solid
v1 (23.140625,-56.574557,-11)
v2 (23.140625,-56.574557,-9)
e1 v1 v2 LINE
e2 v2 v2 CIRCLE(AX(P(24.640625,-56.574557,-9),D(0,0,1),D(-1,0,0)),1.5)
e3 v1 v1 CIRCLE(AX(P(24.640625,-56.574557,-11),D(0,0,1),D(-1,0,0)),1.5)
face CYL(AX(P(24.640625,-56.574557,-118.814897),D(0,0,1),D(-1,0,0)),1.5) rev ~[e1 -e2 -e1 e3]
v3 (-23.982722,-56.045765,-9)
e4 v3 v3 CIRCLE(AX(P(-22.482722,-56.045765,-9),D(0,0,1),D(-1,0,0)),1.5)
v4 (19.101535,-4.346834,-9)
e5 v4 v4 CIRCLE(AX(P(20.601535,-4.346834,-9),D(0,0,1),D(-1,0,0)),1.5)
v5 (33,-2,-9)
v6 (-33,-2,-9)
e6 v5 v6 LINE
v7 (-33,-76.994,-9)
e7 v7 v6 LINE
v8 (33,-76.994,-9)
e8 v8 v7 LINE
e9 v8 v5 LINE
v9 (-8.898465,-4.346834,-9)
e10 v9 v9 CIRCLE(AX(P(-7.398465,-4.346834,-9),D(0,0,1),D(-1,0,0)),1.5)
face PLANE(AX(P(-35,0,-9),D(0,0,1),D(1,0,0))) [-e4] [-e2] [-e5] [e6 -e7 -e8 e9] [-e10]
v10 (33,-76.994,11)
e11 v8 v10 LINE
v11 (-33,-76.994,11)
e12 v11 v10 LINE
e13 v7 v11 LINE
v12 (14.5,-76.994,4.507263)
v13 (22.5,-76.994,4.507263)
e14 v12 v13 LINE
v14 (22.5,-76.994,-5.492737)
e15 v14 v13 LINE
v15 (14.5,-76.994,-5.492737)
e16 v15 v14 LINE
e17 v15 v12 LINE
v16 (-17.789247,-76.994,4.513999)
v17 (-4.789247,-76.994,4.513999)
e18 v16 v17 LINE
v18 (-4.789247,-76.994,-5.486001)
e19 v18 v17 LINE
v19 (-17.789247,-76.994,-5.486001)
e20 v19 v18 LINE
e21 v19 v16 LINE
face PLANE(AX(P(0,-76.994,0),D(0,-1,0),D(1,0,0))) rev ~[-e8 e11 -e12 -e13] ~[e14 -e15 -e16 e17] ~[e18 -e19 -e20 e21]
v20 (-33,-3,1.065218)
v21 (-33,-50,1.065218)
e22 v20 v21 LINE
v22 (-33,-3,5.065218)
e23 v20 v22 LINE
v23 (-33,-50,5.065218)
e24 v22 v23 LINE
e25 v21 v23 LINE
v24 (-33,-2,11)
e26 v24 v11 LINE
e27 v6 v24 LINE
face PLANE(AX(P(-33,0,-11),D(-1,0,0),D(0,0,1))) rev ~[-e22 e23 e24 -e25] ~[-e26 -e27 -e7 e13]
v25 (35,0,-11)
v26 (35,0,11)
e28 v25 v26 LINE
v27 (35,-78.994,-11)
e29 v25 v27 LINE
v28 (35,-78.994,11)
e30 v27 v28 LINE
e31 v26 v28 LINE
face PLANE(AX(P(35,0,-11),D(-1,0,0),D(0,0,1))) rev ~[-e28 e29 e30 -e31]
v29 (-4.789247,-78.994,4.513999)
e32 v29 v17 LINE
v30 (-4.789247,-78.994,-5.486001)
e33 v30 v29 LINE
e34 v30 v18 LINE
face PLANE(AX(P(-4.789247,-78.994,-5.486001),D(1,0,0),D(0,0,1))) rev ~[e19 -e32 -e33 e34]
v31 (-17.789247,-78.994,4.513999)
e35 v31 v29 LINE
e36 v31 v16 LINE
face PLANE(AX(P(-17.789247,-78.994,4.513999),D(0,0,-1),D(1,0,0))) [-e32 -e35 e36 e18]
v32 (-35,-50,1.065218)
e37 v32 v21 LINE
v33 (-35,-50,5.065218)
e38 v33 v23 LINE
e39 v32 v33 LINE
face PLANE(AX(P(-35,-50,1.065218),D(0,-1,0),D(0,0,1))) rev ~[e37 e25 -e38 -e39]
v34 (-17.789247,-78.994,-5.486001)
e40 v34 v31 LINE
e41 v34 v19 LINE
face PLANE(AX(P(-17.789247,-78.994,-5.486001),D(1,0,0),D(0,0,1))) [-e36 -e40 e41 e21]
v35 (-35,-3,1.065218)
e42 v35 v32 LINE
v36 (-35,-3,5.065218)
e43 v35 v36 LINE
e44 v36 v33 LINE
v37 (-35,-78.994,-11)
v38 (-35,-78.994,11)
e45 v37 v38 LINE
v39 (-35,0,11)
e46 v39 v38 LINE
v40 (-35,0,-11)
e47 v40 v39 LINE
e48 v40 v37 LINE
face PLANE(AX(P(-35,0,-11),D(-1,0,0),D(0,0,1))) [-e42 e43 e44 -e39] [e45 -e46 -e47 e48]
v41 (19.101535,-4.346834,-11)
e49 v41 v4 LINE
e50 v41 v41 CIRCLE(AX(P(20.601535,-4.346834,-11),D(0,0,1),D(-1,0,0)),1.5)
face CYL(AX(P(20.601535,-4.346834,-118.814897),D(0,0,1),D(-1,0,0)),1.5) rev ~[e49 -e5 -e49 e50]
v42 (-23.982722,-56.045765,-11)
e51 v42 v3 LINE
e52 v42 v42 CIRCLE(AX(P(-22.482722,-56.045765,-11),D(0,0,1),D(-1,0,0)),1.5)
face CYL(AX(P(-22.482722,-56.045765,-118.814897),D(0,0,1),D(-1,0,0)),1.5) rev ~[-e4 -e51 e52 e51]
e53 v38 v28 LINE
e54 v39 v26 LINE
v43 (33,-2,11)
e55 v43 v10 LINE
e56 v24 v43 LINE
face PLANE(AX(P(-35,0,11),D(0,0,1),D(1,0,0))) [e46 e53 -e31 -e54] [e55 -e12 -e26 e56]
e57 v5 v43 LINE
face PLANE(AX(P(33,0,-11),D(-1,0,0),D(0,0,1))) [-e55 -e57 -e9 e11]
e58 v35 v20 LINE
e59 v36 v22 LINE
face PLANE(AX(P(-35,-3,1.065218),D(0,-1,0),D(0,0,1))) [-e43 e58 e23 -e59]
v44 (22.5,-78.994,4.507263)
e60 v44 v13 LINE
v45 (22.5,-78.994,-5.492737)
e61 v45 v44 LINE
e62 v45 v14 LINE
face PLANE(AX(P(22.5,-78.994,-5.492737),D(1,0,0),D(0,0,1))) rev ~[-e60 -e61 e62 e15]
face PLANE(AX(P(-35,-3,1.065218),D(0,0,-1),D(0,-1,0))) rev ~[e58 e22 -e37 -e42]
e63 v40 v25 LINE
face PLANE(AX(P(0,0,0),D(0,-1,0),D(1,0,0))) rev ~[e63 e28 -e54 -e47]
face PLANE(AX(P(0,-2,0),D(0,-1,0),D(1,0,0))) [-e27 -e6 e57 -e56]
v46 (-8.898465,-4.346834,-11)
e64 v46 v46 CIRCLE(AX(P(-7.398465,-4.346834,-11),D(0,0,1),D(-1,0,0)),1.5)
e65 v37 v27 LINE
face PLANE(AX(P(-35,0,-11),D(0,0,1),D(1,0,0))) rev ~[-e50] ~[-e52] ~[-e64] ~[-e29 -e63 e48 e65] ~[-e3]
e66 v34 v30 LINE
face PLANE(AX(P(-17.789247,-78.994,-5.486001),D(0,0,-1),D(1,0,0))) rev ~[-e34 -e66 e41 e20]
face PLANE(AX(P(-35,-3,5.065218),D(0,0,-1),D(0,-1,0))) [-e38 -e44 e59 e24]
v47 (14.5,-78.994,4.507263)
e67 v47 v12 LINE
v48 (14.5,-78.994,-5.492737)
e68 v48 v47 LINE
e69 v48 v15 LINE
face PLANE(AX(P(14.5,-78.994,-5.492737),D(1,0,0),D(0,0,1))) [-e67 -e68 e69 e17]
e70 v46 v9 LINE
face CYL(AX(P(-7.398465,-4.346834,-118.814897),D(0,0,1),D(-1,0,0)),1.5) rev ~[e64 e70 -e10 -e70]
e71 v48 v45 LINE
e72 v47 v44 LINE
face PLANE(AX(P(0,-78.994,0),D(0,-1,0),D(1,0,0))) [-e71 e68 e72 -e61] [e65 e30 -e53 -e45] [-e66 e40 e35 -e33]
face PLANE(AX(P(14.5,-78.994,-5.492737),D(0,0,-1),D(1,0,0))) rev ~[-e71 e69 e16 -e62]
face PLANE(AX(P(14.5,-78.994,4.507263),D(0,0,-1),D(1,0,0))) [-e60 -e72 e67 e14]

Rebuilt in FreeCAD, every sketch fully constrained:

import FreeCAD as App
import Part
import Sketcher

V = App.Vector


def faces_at(feature, points):
    """Names of the faces that lie closest to the given points."""
    faces = feature.Shape.Faces
    near = lambda p: min(range(len(faces)), key=lambda i: faces[i].distToShape(Part.Vertex(*p))[0])
    return sorted({f"Face{near(p) + 1}" for p in points})

doc = App.newDocument("Part")
params = doc.addObject("Spreadsheet::Sheet", "Params")
for row, (alias, value) in enumerate([
    ("sketch1_width", "70 mm"),
    ("sketch1_height", "22 mm"),
    ("pad1_length", "78.994 mm"),
    ("thickness_wall", "2 mm"),
    ("sketch2_width", "13 mm"),
    ("sketch2_width2", "8 mm"),
    ("sketch2_height", "10 mm"),
    ("pocket1_length", "25.4 mm"),
    ("sketch3_width", "47 mm"),
    ("sketch3_height", "4 mm"),
    ("pocket2_length", "25.4 mm"),
    ("sketch4_diameter", "3 mm"),
    ("hole_diameter", "3 mm"),
], start=1):
    params.set(f"A{row}", alias)
    params.set(f"B{row}", "=" + value)
    params.setAlias(f"B{row}", alias)

body = doc.addObject("PartDesign::Body", "Body")

sketch1 = body.newObject("Sketcher::SketchObject", "Sketch")
sketch1.AttachmentSupport = (doc.getObject("XZ_Plane"), [""])
sketch1.MapMode = "FlatFace"
sketch1.addGeometry(Part.LineSegment(V(-35, 11, 0), V(-35, -11, 0)), False)
sketch1.addGeometry(Part.LineSegment(V(-35, -11, 0), V(35, -11, 0)), False)
sketch1.addGeometry(Part.LineSegment(V(35, -11, 0), V(35, 11, 0)), False)
sketch1.addGeometry(Part.LineSegment(V(35, 11, 0), V(-35, 11, 0)), False)
sketch1.addConstraint(Sketcher.Constraint("Coincident", 0, 2, 1, 1))
sketch1.addConstraint(Sketcher.Constraint("Coincident", 1, 2, 2, 1))
sketch1.addConstraint(Sketcher.Constraint("Coincident", 2, 2, 3, 1))
sketch1.addConstraint(Sketcher.Constraint("Coincident", 3, 2, 0, 1))
sketch1.addConstraint(Sketcher.Constraint("Vertical", 0))
sketch1.addConstraint(Sketcher.Constraint("Horizontal", 1))
sketch1.addConstraint(Sketcher.Constraint("Vertical", 2))
sketch1.addConstraint(Sketcher.Constraint("Horizontal", 3))
sketch1.addConstraint(Sketcher.Constraint("Symmetric", 0, 2, 2, 2, -1, 1))
sketch1.addConstraint(Sketcher.Constraint("DistanceX", 1, 1, 1, 2, 70.0))
sketch1.addConstraint(Sketcher.Constraint("DistanceY", 0, 2, 0, 1, 22.0))
sketch1.setExpression("Constraints[9]", "Params.sketch1_width")
sketch1.setExpression("Constraints[10]", "Params.sketch1_height")
pad1 = body.newObject("PartDesign::Pad", "Pad")
pad1.Profile = sketch1
pad1.setExpression("Length", "Params.pad1_length")
doc.recompute()

thickness = body.newObject("PartDesign::Thickness", "Thickness")
thickness.Base = (pad1, faces_at(pad1, [(0, -39.497, 11)]))
thickness.setExpression("Value", "Params.thickness_wall")
thickness.Reversed = True
thickness.Join = "Arc"

sketch2 = body.newObject("Sketcher::SketchObject", "Sketch001")
sketch2.AttachmentSupport = (doc.getObject("XZ_Plane"), [""])
sketch2.MapMode = "FlatFace"
sketch2.AttachmentOffset = App.Placement(V(0, 0, 78.994), App.Rotation())
sketch2.addGeometry(Part.LineSegment(V(-17.789247, 4.513999, 0), V(-17.789247, -5.486001, 0)), False)
sketch2.addGeometry(Part.LineSegment(V(-17.789247, -5.486001, 0), V(-4.789247, -5.486001, 0)), False)
sketch2.addGeometry(Part.LineSegment(V(-4.789247, -5.486001, 0), V(-4.789247, 4.513999, 0)), False)
sketch2.addGeometry(Part.LineSegment(V(-4.789247, 4.513999, 0), V(-17.789247, 4.513999, 0)), False)
sketch2.addGeometry(Part.LineSegment(V(14.5, 4.507263, 0), V(14.5, -5.492737, 0)), False)
sketch2.addGeometry(Part.LineSegment(V(14.5, -5.492737, 0), V(22.5, -5.492737, 0)), False)
sketch2.addGeometry(Part.LineSegment(V(22.5, -5.492737, 0), V(22.5, 4.507263, 0)), False)
sketch2.addGeometry(Part.LineSegment(V(22.5, 4.507263, 0), V(14.5, 4.507263, 0)), False)
sketch2.addConstraint(Sketcher.Constraint("Coincident", 0, 2, 1, 1))
sketch2.addConstraint(Sketcher.Constraint("Coincident", 1, 2, 2, 1))
sketch2.addConstraint(Sketcher.Constraint("Coincident", 2, 2, 3, 1))
sketch2.addConstraint(Sketcher.Constraint("Coincident", 3, 2, 0, 1))
sketch2.addConstraint(Sketcher.Constraint("Coincident", 4, 2, 5, 1))
sketch2.addConstraint(Sketcher.Constraint("Coincident", 5, 2, 6, 1))
sketch2.addConstraint(Sketcher.Constraint("Coincident", 6, 2, 7, 1))
sketch2.addConstraint(Sketcher.Constraint("Coincident", 7, 2, 4, 1))
sketch2.addConstraint(Sketcher.Constraint("Vertical", 0))
sketch2.addConstraint(Sketcher.Constraint("Horizontal", 1))
sketch2.addConstraint(Sketcher.Constraint("Vertical", 2))
sketch2.addConstraint(Sketcher.Constraint("Horizontal", 3))
sketch2.addConstraint(Sketcher.Constraint("Vertical", 4))
sketch2.addConstraint(Sketcher.Constraint("Horizontal", 5))
sketch2.addConstraint(Sketcher.Constraint("Vertical", 6))
sketch2.addConstraint(Sketcher.Constraint("Horizontal", 7))
sketch2.addConstraint(Sketcher.Constraint("Equal", 2, 4))
sketch2.addConstraint(Sketcher.Constraint("DistanceX", 1, 1, 1, 2, 13.0))
sketch2.addConstraint(Sketcher.Constraint("DistanceX", 5, 1, 5, 2, 8.0))
sketch2.addConstraint(Sketcher.Constraint("DistanceY", 0, 2, 0, 1, 10.0))
sketch2.addConstraint(Sketcher.Constraint("DistanceX", -1, 1, 4, 2, 14.5))
sketch2.addConstraint(Sketcher.Constraint("DistanceY", 0, 2, -1, 1, 5.486001))
sketch2.addConstraint(Sketcher.Constraint("DistanceX", 0, 2, -1, 1, 17.789247))
sketch2.addConstraint(Sketcher.Constraint("DistanceY", 4, 2, -1, 1, 5.492737))
sketch2.setExpression("Constraints[17]", "Params.sketch2_width")
sketch2.setExpression("Constraints[18]", "Params.sketch2_width2")
sketch2.setExpression("Constraints[19]", "Params.sketch2_height")
pocket1 = body.newObject("PartDesign::Pocket", "Pocket")
pocket1.Profile = sketch2
pocket1.setExpression("Length", "Params.pocket1_length")

sketch3 = body.newObject("Sketcher::SketchObject", "Sketch002")
sketch3.AttachmentSupport = (doc.getObject("YZ_Plane"), [""])
sketch3.MapMode = "FlatFace"
sketch3.AttachmentOffset = App.Placement(V(0, 0, -35), App.Rotation())
sketch3.addGeometry(Part.LineSegment(V(-3, 5.065218, 0), V(-3, 1.065218, 0)), False)
sketch3.addGeometry(Part.LineSegment(V(-3, 1.065218, 0), V(-50, 1.065218, 0)), False)
sketch3.addGeometry(Part.LineSegment(V(-50, 1.065218, 0), V(-50, 5.065218, 0)), False)
sketch3.addGeometry(Part.LineSegment(V(-50, 5.065218, 0), V(-3, 5.065218, 0)), False)
sketch3.addConstraint(Sketcher.Constraint("Coincident", 0, 2, 1, 1))
sketch3.addConstraint(Sketcher.Constraint("Coincident", 1, 2, 2, 1))
sketch3.addConstraint(Sketcher.Constraint("Coincident", 2, 2, 3, 1))
sketch3.addConstraint(Sketcher.Constraint("Coincident", 3, 2, 0, 1))
sketch3.addConstraint(Sketcher.Constraint("Vertical", 0))
sketch3.addConstraint(Sketcher.Constraint("Horizontal", 1))
sketch3.addConstraint(Sketcher.Constraint("Vertical", 2))
sketch3.addConstraint(Sketcher.Constraint("Horizontal", 3))
sketch3.addConstraint(Sketcher.Constraint("DistanceX", 1, 2, 1, 1, 47.0))
sketch3.addConstraint(Sketcher.Constraint("DistanceY", 0, 2, 0, 1, 4.0))
sketch3.addConstraint(Sketcher.Constraint("DistanceX", 0, 2, -1, 1, 3.0))
sketch3.addConstraint(Sketcher.Constraint("DistanceY", -1, 1, 0, 2, 1.065218))
sketch3.setExpression("Constraints[8]", "Params.sketch3_width")
sketch3.setExpression("Constraints[9]", "Params.sketch3_height")
pocket2 = body.newObject("PartDesign::Pocket", "Pocket001")
pocket2.Profile = sketch3
pocket2.setExpression("Length", "Params.pocket2_length")
pocket2.Reversed = True

sketch4 = body.newObject("Sketcher::SketchObject", "Sketch003")
sketch4.AttachmentSupport = (doc.getObject("XY_Plane"), [""])
sketch4.MapMode = "FlatFace"
sketch4.AttachmentOffset = App.Placement(V(0, 0, -11), App.Rotation())
sketch4.addGeometry(Part.Circle(V(-7.398465, -4.346834, 0), V(0, 0, 1), 1.5), False)
sketch4.addGeometry(Part.Circle(V(20.601535, -4.346834, 0), V(0, 0, 1), 1.5), False)
sketch4.addGeometry(Part.Circle(V(24.640625, -56.574557, 0), V(0, 0, 1), 1.5), False)
sketch4.addGeometry(Part.Circle(V(-22.482722, -56.045765, 0), V(0, 0, 1), 1.5), False)
sketch4.addConstraint(Sketcher.Constraint("Equal", 0, 1))
sketch4.addConstraint(Sketcher.Constraint("Equal", 1, 2))
sketch4.addConstraint(Sketcher.Constraint("Equal", 2, 3))
sketch4.addConstraint(Sketcher.Constraint("Horizontal", 0, 3, 1, 3))
sketch4.addConstraint(Sketcher.Constraint("Diameter", 0, 3.0))
sketch4.addConstraint(Sketcher.Constraint("DistanceX", 0, 3, 1, 3, 28.0))
sketch4.addConstraint(Sketcher.Constraint("DistanceX", 3, 3, -1, 1, 22.482722))
sketch4.addConstraint(Sketcher.Constraint("DistanceX", 1, 3, 2, 3, 4.03909))
sketch4.addConstraint(Sketcher.Constraint("DistanceY", 2, 3, 3, 3, 0.528792))
sketch4.addConstraint(Sketcher.Constraint("DistanceY", 3, 3, 0, 3, 51.698931))
sketch4.addConstraint(Sketcher.Constraint("DistanceX", 0, 3, -1, 1, 7.398465))
sketch4.addConstraint(Sketcher.Constraint("DistanceY", 0, 3, -1, 1, 4.346834))
sketch4.setExpression("Constraints[4]", "Params.sketch4_diameter")
doc.recompute()
hole = body.newObject("PartDesign::Hole", "Hole")
hole.Profile = sketch4
hole.ThreadType = "None"
hole.setExpression("Diameter", "Params.hole_diameter")
hole.DepthType = "ThroughAll"
hole.Reversed = True

doc.recompute()
